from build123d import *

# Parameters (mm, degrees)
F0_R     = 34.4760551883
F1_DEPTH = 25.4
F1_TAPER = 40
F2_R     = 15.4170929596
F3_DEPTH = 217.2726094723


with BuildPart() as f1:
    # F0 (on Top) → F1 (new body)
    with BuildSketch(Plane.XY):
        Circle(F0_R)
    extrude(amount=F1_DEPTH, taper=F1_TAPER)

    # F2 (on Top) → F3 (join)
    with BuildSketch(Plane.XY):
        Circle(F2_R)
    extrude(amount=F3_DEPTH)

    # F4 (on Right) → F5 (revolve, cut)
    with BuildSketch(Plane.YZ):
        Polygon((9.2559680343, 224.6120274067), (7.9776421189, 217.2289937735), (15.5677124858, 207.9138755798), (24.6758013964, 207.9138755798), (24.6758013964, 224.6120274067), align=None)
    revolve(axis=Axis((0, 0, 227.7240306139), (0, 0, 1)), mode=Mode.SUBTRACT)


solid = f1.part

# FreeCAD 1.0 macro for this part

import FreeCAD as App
import Part
import Sketcher


def add_polygon(sketch, points):
    """Adds a closed chain of lines whose ends are joined by coincident constraints."""
    first, n = sketch.GeometryCount, len(points)
    for a, b in zip(points, points[1:] + points[:1]):
        sketch.addGeometry(Part.LineSegment(App.Vector(*a, 0), App.Vector(*b, 0)), False)
    for i in range(n):
        sketch.addConstraint(Sketcher.Constraint("Coincident", first + i, 2, first + (i + 1) % n, 1))

doc = App.newDocument("Part")
params = doc.addObject("Spreadsheet::Sheet", "Params")
for row, (alias, value) in enumerate([
    ("pad1_length", "1 in"),
    ("pad1_taper", "-40 deg"),
    ("pad2_length", "217.272609 mm"),
    ("groove_angle", "360 deg"),
], start=1):
    params.set(f"A{row}", alias)
    params.set(f"B{row}", "=" + value)
    params.setAlias(f"B{row}", alias)

body = doc.addObject("PartDesign::Body", "Body")

# Sketch on XY plane
sketch1 = body.newObject("Sketcher::SketchObject", "Sketch")
sketch1.AttachmentSupport = (doc.getObject("XY_Plane"), [""])
sketch1.MapMode = "FlatFace"
sketch1.addGeometry(Part.Circle(App.Vector(0, 0, 0), App.Vector(0, 0, 1), 34.476055), False)
sketch1.addConstraint(Sketcher.Constraint("Coincident", 0, 3, -1, 1))
sketch1.addConstraint(Sketcher.Constraint("Diameter", 0, 68.95211))
pad1 = body.newObject("PartDesign::Pad", "Pad")
pad1.Profile = sketch1
pad1.setExpression("Length", "Params.pad1_length")
pad1.setExpression("TaperAngle", "Params.pad1_taper")

# Sketch on XY plane
sketch2 = body.newObject("Sketcher::SketchObject", "Sketch001")
sketch2.AttachmentSupport = (doc.getObject("XY_Plane"), [""])
sketch2.MapMode = "FlatFace"
sketch2.addGeometry(Part.Circle(App.Vector(0, 0, 0), App.Vector(0, 0, 1), 15.417093), False)
sketch2.addConstraint(Sketcher.Constraint("Coincident", 0, 3, -1, 1))
sketch2.addConstraint(Sketcher.Constraint("Diameter", 0, 30.834186))
pad2 = body.newObject("PartDesign::Pad", "Pad001")
pad2.Profile = sketch2
pad2.setExpression("Length", "Params.pad2_length")

# Sketch on YZ plane
sketch3 = body.newObject("Sketcher::SketchObject", "Sketch002")
sketch3.AttachmentSupport = (doc.getObject("YZ_Plane"), [""])
sketch3.MapMode = "FlatFace"
add_polygon(sketch3, [(9.255968, 224.612027), (7.977642, 217.228994), (15.567712, 207.913876), (24.675801, 207.913876), (24.675801, 224.612027)])  # lines 0-4
sketch3.addConstraint(Sketcher.Constraint("Horizontal", 2))
sketch3.addConstraint(Sketcher.Constraint("Vertical", 3))
sketch3.addConstraint(Sketcher.Constraint("Horizontal", 4))
sketch3.addConstraint(Sketcher.Constraint("DistanceX", 2, 1, 2, 2, 9.108089))
sketch3.addConstraint(Sketcher.Constraint("DistanceY", 3, 1, 3, 2, 16.698152))
sketch3.addConstraint(Sketcher.Constraint("DistanceX", -1, 1, 2, 2, 24.675801))
sketch3.addConstraint(Sketcher.Constraint("DistanceX", 4, 2, 4, 1, 15.419833))
sketch3.addConstraint(Sketcher.Constraint("DistanceX", 0, 2, 1, 2, 7.59007))
sketch3.addConstraint(Sketcher.Constraint("DistanceY", 1, 2, 0, 2, 9.315118))
sketch3.addConstraint(Sketcher.Constraint("DistanceY", -1, 1, 0, 2, 217.228994))
groove = body.newObject("PartDesign::Groove", "Groove")
groove.Profile = sketch3
groove.ReferenceAxis = (sketch3, ["V_Axis"])
groove.setExpression("Angle", "Params.groove_angle")

doc.recompute()
